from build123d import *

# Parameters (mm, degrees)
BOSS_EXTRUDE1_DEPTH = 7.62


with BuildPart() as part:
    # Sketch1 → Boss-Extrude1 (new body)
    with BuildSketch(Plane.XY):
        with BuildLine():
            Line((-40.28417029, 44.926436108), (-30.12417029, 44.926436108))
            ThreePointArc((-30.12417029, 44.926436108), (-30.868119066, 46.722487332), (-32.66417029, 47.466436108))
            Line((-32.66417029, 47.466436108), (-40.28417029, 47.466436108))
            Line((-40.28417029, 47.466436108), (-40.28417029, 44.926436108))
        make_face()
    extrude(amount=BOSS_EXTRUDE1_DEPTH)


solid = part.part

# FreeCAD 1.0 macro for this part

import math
import FreeCAD as App
import Part
import Sketcher
Q = App.Units.Quantity

doc = App.newDocument("Part")
body = doc.addObject("PartDesign::Body", "Body")

sketch1 = body.newObject("Sketcher::SketchObject", "Sketch")
sketch1.AttachmentSupport = (doc.getObject("XY_Plane"), [""])
sketch1.MapMode = "FlatFace"
sketch1.addGeometry(Part.LineSegment(App.Vector(-40.28417, 44.926436, 0), App.Vector(-30.12417, 44.926436, 0)), False)
sketch1.addGeometry(Part.ArcOfCircle(Part.Circle(App.Vector(-32.66417, 44.926436, 0), App.Vector(0, 0, 1), 2.54), math.radians(0), math.radians(90)), False)
sketch1.addGeometry(Part.LineSegment(App.Vector(-32.66417, 47.466436, 0), App.Vector(-40.28417, 47.466436, 0)), False)
sketch1.addGeometry(Part.LineSegment(App.Vector(-40.28417, 47.466436, 0), App.Vector(-40.28417, 44.926436, 0)), False)
sketch1.addConstraint(Sketcher.Constraint("Coincident", 0, 2, 1, 1))
sketch1.addConstraint(Sketcher.Constraint("Tangent", 1, 2, 2, 1))
sketch1.addConstraint(Sketcher.Constraint("Coincident", 2, 2, 3, 1))
sketch1.addConstraint(Sketcher.Constraint("Coincident", 3, 2, 0, 1))
sketch1.addConstraint(Sketcher.Constraint("Horizontal", 0))
sketch1.addConstraint(Sketcher.Constraint("Horizontal", 2))
sketch1.addConstraint(Sketcher.Constraint("Vertical", 3))
sketch1.addConstraint(Sketcher.Constraint("Horizontal", 1, 3, 0, 2))
sketch1.addConstraint(Sketcher.Constraint("Radius", 1, Q("0.1 in")))
sketch1.addConstraint(Sketcher.Constraint("DistanceX", 0, 1, 0, 2, Q("0.4 in")))
sketch1.addConstraint(Sketcher.Constraint("DistanceX", 1, 3, -1, 1, 32.66417))
sketch1.addConstraint(Sketcher.Constraint("DistanceY", -1, 1, 1, 3, 44.926436))
pad1 = body.newObject("PartDesign::Pad", "Pad")
pad1.Profile = sketch1
pad1.Length = Q("0.3 in")

doc.recompute()
